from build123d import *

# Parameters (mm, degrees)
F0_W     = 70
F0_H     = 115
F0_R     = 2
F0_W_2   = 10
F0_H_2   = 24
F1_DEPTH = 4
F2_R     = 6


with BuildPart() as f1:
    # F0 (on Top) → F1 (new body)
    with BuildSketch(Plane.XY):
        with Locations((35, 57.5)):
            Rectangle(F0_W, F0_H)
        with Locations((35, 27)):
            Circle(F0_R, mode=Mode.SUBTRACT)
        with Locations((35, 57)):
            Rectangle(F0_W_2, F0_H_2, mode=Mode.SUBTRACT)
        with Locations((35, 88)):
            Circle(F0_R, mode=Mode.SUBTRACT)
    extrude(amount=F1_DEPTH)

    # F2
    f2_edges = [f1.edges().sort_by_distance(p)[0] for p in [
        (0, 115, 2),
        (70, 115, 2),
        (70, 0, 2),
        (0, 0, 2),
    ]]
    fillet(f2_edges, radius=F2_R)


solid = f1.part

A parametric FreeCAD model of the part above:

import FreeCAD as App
import Part
import Sketcher
from FreeCAD import Vector


def edges_at(feature, points):
    """Names of the edges that pass closest to the given points."""
    edges = feature.Shape.Edges
    near = lambda p: min(range(len(edges)), key=lambda i: edges[i].distToShape(Part.Vertex(*p))[0])
    return sorted({f"Edge{near(p) + 1}" for p in points})


def add_polygon(sketch, points):
    """Adds a closed chain of lines whose ends are joined by coincident constraints."""
    first, n = sketch.GeometryCount, len(points)
    for a, b in zip(points, points[1:] + points[:1]):
        sketch.addGeometry(Part.LineSegment(App.Vector(*a, 0), App.Vector(*b, 0)), False)
    for i in range(n):
        sketch.addConstraint(Sketcher.Constraint("Coincident", first + i, 2, first + (i + 1) % n, 1))

doc = App.newDocument("Part")
params = doc.addObject("Spreadsheet::Sheet", "Params")
for row, (alias, value) in enumerate([
    ("sketch1_diameter", "4 mm"),
    ("sketch1_width", "70 mm"),
    ("sketch1_width2", "10 mm"),
    ("sketch1_height", "115 mm"),
    ("sketch1_height2", "24 mm"),
    ("pad1_length", "4 mm"),
    ("fillet_radius", "6 mm"),
], start=1):
    params.set(f"A{row}", alias)
    params.set(f"B{row}", "=" + value)
    params.setAlias(f"B{row}", alias)

body = doc.addObject("PartDesign::Body", "Body")

# Sketch on XY plane
sketch1 = body.newObject("Sketcher::SketchObject", "Sketch")
sketch1.AttachmentSupport = (doc.getObject("XY_Plane"), [""])
sketch1.MapMode = "FlatFace"
add_polygon(sketch1, [(0, 115), (0, 0), (70, 0), (70, 115)])  # lines 0-3
sketch1.addGeometry(Part.Circle(Vector(35, 27, 0), Vector(0, 0, 1), 2), False)  # 4
add_polygon(sketch1, [(40, 45), (30, 45), (30, 69), (40, 69)])  # lines 5-8
sketch1.addGeometry(Part.Circle(Vector(35, 88, 0), Vector(0, 0, 1), 2), False)  # 9
sketch1.addConstraint(Sketcher.Constraint("Vertical", 0))
sketch1.addConstraint(Sketcher.Constraint("Horizontal", 1))
sketch1.addConstraint(Sketcher.Constraint("Vertical", 2))
sketch1.addConstraint(Sketcher.Constraint("Horizontal", 3))
sketch1.addConstraint(Sketcher.Constraint("Horizontal", 5))
sketch1.addConstraint(Sketcher.Constraint("Vertical", 6))
sketch1.addConstraint(Sketcher.Constraint("Horizontal", 7))
sketch1.addConstraint(Sketcher.Constraint("Vertical", 8))
sketch1.addConstraint(Sketcher.Constraint("Coincident", 0, 2, -1, 1))
sketch1.addConstraint(Sketcher.Constraint("Equal", 4, 9))
sketch1.addConstraint(Sketcher.Constraint("Vertical", 4, 3, 9, 3))
sketch1.addConstraint(Sketcher.Constraint("Diameter", 4, 4.0))
sketch1.addConstraint(Sketcher.Constraint("DistanceX", 1, 1, 1, 2, 70.0))
sketch1.addConstraint(Sketcher.Constraint("DistanceX", 5, 2, 5, 1, 10.0))
sketch1.addConstraint(Sketcher.Constraint("DistanceY", 0, 2, 0, 1, 115.0))
sketch1.addConstraint(Sketcher.Constraint("DistanceY", 6, 1, 6, 2, 24.0))
sketch1.addConstraint(Sketcher.Constraint("DistanceX", -1, 1, 4, 3, 35.0))
sketch1.addConstraint(Sketcher.Constraint("DistanceY", -1, 1, 4, 3, 27.0))
sketch1.addConstraint(Sketcher.Constraint("DistanceY", -1, 1, 9, 3, 88.0))
sketch1.addConstraint(Sketcher.Constraint("DistanceX", -1, 1, 5, 2, 30.0))
sketch1.addConstraint(Sketcher.Constraint("DistanceY", -1, 1, 5, 2, 45.0))
sketch1.setExpression("Constraints[19]", "Params.sketch1_diameter")
sketch1.setExpression("Constraints[20]", "Params.sketch1_width")
sketch1.setExpression("Constraints[21]", "Params.sketch1_width2")
sketch1.setExpression("Constraints[22]", "Params.sketch1_height")
sketch1.setExpression("Constraints[23]", "Params.sketch1_height2")
pad1 = body.newObject("PartDesign::Pad", "Pad")
pad1.Profile = sketch1
pad1.setExpression("Length", "Params.pad1_length")
doc.recompute()

fillet = body.newObject("PartDesign::Fillet", "Fillet")
fillet.Base = (pad1, edges_at(pad1, [
    (0, 115, 2),
    (70, 115, 2),
    (70, 0, 2),
    (0, 0, 2),
]))
fillet.setExpression("Radius", "Params.fillet_radius")

doc.recompute()
